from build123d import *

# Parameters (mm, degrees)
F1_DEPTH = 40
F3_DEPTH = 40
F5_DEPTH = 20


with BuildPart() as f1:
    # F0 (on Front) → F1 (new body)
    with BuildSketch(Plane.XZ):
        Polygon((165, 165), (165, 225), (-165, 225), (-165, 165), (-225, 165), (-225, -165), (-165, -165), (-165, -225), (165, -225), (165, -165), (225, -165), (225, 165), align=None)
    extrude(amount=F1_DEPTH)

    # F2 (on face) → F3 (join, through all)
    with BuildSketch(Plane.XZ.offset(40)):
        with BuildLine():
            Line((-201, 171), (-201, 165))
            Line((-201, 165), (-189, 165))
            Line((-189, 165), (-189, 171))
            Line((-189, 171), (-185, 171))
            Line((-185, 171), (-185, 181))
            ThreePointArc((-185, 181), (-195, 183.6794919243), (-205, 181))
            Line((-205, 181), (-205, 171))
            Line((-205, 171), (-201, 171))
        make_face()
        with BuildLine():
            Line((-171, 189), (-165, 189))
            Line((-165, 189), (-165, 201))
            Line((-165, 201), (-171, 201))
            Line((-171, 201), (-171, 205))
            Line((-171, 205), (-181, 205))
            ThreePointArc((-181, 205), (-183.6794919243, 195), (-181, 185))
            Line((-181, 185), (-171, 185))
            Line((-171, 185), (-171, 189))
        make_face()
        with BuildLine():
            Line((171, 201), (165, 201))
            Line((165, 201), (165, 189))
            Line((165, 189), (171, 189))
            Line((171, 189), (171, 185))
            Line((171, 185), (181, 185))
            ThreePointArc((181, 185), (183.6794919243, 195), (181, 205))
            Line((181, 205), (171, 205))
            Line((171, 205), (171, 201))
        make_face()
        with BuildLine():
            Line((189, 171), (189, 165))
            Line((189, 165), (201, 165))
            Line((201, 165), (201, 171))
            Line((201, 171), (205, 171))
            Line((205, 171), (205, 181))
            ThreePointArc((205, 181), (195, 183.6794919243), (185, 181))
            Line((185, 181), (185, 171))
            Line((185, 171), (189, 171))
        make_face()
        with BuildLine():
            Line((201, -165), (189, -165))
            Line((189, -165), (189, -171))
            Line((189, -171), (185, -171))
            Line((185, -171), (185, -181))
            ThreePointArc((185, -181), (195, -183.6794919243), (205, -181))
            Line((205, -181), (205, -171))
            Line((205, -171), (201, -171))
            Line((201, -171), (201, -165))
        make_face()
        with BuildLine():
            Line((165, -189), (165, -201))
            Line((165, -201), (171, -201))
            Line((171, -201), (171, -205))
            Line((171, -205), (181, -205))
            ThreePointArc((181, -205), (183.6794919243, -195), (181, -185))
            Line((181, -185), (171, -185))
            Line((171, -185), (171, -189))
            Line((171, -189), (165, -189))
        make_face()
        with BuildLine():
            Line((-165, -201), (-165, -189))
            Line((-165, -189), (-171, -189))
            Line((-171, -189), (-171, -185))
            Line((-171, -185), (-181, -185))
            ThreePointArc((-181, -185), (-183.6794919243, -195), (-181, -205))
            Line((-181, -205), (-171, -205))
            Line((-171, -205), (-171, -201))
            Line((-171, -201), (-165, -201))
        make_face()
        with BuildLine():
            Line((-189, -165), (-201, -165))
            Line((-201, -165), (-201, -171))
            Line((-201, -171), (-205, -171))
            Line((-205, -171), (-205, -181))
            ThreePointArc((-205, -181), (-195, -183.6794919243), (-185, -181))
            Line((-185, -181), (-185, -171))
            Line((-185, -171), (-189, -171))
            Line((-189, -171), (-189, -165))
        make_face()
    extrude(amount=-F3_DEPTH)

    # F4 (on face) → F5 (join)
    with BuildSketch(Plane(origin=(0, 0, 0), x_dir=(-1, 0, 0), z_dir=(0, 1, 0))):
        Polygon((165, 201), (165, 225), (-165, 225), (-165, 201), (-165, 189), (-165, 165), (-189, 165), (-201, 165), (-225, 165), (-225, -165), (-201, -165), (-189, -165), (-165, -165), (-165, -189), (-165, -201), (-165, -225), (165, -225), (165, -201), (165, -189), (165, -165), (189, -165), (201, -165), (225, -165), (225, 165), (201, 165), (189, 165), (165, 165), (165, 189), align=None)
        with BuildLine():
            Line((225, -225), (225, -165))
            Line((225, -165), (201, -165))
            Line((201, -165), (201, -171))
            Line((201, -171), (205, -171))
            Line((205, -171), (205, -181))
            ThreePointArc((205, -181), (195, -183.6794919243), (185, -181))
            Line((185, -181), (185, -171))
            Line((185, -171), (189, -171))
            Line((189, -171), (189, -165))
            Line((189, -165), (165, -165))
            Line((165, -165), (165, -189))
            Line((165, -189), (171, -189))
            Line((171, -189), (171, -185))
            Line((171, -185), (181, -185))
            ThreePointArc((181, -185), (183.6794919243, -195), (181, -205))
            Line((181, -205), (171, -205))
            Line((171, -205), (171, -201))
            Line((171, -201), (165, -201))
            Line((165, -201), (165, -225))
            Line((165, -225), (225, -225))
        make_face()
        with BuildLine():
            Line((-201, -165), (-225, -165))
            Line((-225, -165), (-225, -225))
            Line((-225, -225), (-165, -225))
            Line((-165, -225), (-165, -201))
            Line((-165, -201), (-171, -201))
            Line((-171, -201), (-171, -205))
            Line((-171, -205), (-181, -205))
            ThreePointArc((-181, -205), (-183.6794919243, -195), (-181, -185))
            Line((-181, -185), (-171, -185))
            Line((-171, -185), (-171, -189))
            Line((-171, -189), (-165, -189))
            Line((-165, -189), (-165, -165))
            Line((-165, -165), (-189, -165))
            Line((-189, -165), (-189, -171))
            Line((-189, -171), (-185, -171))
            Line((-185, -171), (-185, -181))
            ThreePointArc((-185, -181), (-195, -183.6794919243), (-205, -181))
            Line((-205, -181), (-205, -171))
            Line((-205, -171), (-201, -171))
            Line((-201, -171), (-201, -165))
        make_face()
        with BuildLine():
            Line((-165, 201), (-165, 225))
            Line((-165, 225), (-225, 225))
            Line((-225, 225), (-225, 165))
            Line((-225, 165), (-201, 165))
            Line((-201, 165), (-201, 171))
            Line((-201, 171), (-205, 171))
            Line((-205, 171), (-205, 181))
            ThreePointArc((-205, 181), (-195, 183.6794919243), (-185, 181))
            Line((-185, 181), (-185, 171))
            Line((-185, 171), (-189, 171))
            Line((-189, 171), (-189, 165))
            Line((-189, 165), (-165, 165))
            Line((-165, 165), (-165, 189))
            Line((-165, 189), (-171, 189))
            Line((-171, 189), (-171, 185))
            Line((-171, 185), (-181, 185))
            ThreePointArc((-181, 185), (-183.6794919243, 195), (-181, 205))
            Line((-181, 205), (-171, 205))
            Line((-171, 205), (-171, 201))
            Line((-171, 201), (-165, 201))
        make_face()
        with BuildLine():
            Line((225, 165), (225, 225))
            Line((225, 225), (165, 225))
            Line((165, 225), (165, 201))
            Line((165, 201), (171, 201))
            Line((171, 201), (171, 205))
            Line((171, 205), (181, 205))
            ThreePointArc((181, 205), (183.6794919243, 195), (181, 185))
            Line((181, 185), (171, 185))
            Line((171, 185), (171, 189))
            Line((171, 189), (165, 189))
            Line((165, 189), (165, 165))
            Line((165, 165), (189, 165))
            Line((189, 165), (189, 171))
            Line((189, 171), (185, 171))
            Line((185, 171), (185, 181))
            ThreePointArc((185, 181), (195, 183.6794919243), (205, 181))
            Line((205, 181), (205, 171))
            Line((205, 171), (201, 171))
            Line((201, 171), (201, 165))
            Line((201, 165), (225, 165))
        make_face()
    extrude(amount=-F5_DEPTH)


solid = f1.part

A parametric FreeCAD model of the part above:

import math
import FreeCAD as App
import Part
import Sketcher
from FreeCAD import Vector
Q = App.Units.Quantity

doc = App.newDocument("Part")
body = doc.addObject("PartDesign::Body", "Body")

# Sketch on XZ plane
sketch1 = body.newObject("Sketcher::SketchObject", "Sketch")
sketch1.AttachmentSupport = (doc.getObject("XZ_Plane"), [""])
sketch1.MapMode = "FlatFace"
sketch1.addGeometry([
    Part.LineSegment(Vector(165, 165, 0), Vector(165, 225, 0)),  # 0
    Part.LineSegment(Vector(165, 225, 0), Vector(-165, 225, 0)),  # 1
    Part.LineSegment(Vector(-165, 225, 0), Vector(-165, 165, 0)),  # 2
    Part.LineSegment(Vector(-165, 165, 0), Vector(-225, 165, 0)),  # 3
    Part.LineSegment(Vector(-225, 165, 0), Vector(-225, -165, 0)),  # 4
    Part.LineSegment(Vector(-225, -165, 0), Vector(-165, -165, 0)),  # 5
    Part.LineSegment(Vector(-165, -165, 0), Vector(-165, -225, 0)),  # 6
    Part.LineSegment(Vector(-165, -225, 0), Vector(165, -225, 0)),  # 7
    Part.LineSegment(Vector(165, -225, 0), Vector(165, -165, 0)),  # 8
    Part.LineSegment(Vector(165, -165, 0), Vector(225, -165, 0)),  # 9
    Part.LineSegment(Vector(225, -165, 0), Vector(225, 165, 0)),  # 10
    Part.LineSegment(Vector(225, 165, 0), Vector(165, 165, 0)),  # 11
], False)
sketch1.addConstraint([
    Sketcher.Constraint("Coincident", 0, 2, 1, 1),
    Sketcher.Constraint("Coincident", 1, 2, 2, 1),
    Sketcher.Constraint("Coincident", 2, 2, 3, 1),
    Sketcher.Constraint("Coincident", 3, 2, 4, 1),
    Sketcher.Constraint("Coincident", 4, 2, 5, 1),
    Sketcher.Constraint("Coincident", 5, 2, 6, 1),
    Sketcher.Constraint("Coincident", 6, 2, 7, 1),
    Sketcher.Constraint("Coincident", 7, 2, 8, 1),
    Sketcher.Constraint("Coincident", 8, 2, 9, 1),
    Sketcher.Constraint("Coincident", 9, 2, 10, 1),
    Sketcher.Constraint("Coincident", 10, 2, 11, 1),
    Sketcher.Constraint("Coincident", 11, 2, 0, 1),
    Sketcher.Constraint("Vertical", 0),
    Sketcher.Constraint("Horizontal", 1),
    Sketcher.Constraint("Vertical", 2),
    Sketcher.Constraint("Horizontal", 3),
    Sketcher.Constraint("Vertical", 4),
    Sketcher.Constraint("Horizontal", 5),
    Sketcher.Constraint("Vertical", 6),
    Sketcher.Constraint("Horizontal", 7),
    Sketcher.Constraint("Vertical", 8),
    Sketcher.Constraint("Horizontal", 9),
    Sketcher.Constraint("Vertical", 10),
    Sketcher.Constraint("Horizontal", 11),
    Sketcher.Constraint("Symmetric", 0, 2, 6, 2, -1, 1),
    Sketcher.Constraint("Symmetric", 2, 2, 8, 2, -1, 1),
    Sketcher.Constraint("Symmetric", 4, 2, 10, 2, -1, 1),
    Sketcher.Constraint("Symmetric", 5, 2, 8, 2, -2),
    Sketcher.Constraint("Equal", 11, 0),
    Sketcher.Constraint("Equal", 7, 4),
    Sketcher.Constraint("DistanceX", 1, 2, 1, 1, Q("330 mm")),
    Sketcher.Constraint("DistanceX", 3, 2, 3, 1, Q("60 mm")),
])
pad1 = body.newObject("PartDesign::Pad", "Pad")
pad1.Profile = sketch1
pad1.Length = 40

# Sketch on XZ plane
sketch2 = body.newObject("Sketcher::SketchObject", "Sketch001")
sketch2.AttachmentSupport = (doc.getObject("XZ_Plane"), [""])
sketch2.MapMode = "FlatFace"
sketch2.AttachmentOffset = App.Placement(Vector(0, 0, 40), App.Rotation())
sketch2.addGeometry([
    Part.LineSegment(Vector(-201, 171, 0), Vector(-201, 165, 0)),  # 0
    Part.LineSegment(Vector(-201, 165, 0), Vector(-189, 165, 0)),  # 1
    Part.LineSegment(Vector(-189, 165, 0), Vector(-189, 171, 0)),  # 2
    Part.LineSegment(Vector(-189, 171, 0), Vector(-185, 171, 0)),  # 3
    Part.LineSegment(Vector(-185, 171, 0), Vector(-185, 181, 0)),  # 4
    Part.ArcOfCircle(Part.Circle(Vector(-195, 163.679492, 0), Vector(0, 0, 1), 20), math.radians(60), math.radians(120)),  # 5
    Part.LineSegment(Vector(-205, 181, 0), Vector(-205, 171, 0)),  # 6
    Part.LineSegment(Vector(-205, 171, 0), Vector(-201, 171, 0)),  # 7
    Part.LineSegment(Vector(-171, 189, 0), Vector(-165, 189, 0)),  # 8
    Part.LineSegment(Vector(-165, 189, 0), Vector(-165, 201, 0)),  # 9
    Part.LineSegment(Vector(-165, 201, 0), Vector(-171, 201, 0)),  # 10
    Part.LineSegment(Vector(-171, 201, 0), Vector(-171, 205, 0)),  # 11
    Part.LineSegment(Vector(-171, 205, 0), Vector(-181, 205, 0)),  # 12
    Part.ArcOfCircle(Part.Circle(Vector(-163.679492, 195, 0), Vector(0, 0, 1), 20), math.radians(150), math.radians(210)),  # 13
    Part.LineSegment(Vector(-181, 185, 0), Vector(-171, 185, 0)),  # 14
    Part.LineSegment(Vector(-171, 185, 0), Vector(-171, 189, 0)),  # 15
    Part.LineSegment(Vector(171, 201, 0), Vector(165, 201, 0)),  # 16
    Part.LineSegment(Vector(165, 201, 0), Vector(165, 189, 0)),  # 17
    Part.LineSegment(Vector(165, 189, 0), Vector(171, 189, 0)),  # 18
    Part.LineSegment(Vector(171, 189, 0), Vector(171, 185, 0)),  # 19
    Part.LineSegment(Vector(171, 185, 0), Vector(181, 185, 0)),  # 20
    Part.ArcOfCircle(Part.Circle(Vector(163.679492, 195, 0), Vector(0, 0, 1), 20), math.radians(-30), math.radians(30)),  # 21
    Part.LineSegment(Vector(181, 205, 0), Vector(171, 205, 0)),  # 22
    Part.LineSegment(Vector(171, 205, 0), Vector(171, 201, 0)),  # 23
    Part.LineSegment(Vector(189, 171, 0), Vector(189, 165, 0)),  # 24
    Part.LineSegment(Vector(189, 165, 0), Vector(201, 165, 0)),  # 25
    Part.LineSegment(Vector(201, 165, 0), Vector(201, 171, 0)),  # 26
    Part.LineSegment(Vector(201, 171, 0), Vector(205, 171, 0)),  # 27
    Part.LineSegment(Vector(205, 171, 0), Vector(205, 181, 0)),  # 28
    Part.ArcOfCircle(Part.Circle(Vector(195, 163.679492, 0), Vector(0, 0, 1), 20), math.radians(60), math.radians(120)),  # 29
    Part.LineSegment(Vector(185, 181, 0), Vector(185, 171, 0)),  # 30
    Part.LineSegment(Vector(185, 171, 0), Vector(189, 171, 0)),  # 31
    Part.LineSegment(Vector(201, -165, 0), Vector(189, -165, 0)),  # 32
    Part.LineSegment(Vector(189, -165, 0), Vector(189, -171, 0)),  # 33
    Part.LineSegment(Vector(189, -171, 0), Vector(185, -171, 0)),  # 34
    Part.LineSegment(Vector(185, -171, 0), Vector(185, -181, 0)),  # 35
    Part.ArcOfCircle(Part.Circle(Vector(195, -163.679492, 0), Vector(0, 0, 1), 20), math.radians(-120), math.radians(-60)),  # 36
    Part.LineSegment(Vector(205, -181, 0), Vector(205, -171, 0)),  # 37
    Part.LineSegment(Vector(205, -171, 0), Vector(201, -171, 0)),  # 38
    Part.LineSegment(Vector(201, -171, 0), Vector(201, -165, 0)),  # 39
    Part.LineSegment(Vector(165, -189, 0), Vector(165, -201, 0)),  # 40
    Part.LineSegment(Vector(165, -201, 0), Vector(171, -201, 0)),  # 41
    Part.LineSegment(Vector(171, -201, 0), Vector(171, -205, 0)),  # 42
    Part.LineSegment(Vector(171, -205, 0), Vector(181, -205, 0)),  # 43
    Part.ArcOfCircle(Part.Circle(Vector(163.679492, -195, 0), Vector(0, 0, 1), 20), math.radians(-30), math.radians(30)),  # 44
    Part.LineSegment(Vector(181, -185, 0), Vector(171, -185, 0)),  # 45
    Part.LineSegment(Vector(171, -185, 0), Vector(171, -189, 0)),  # 46
    Part.LineSegment(Vector(171, -189, 0), Vector(165, -189, 0)),  # 47
    Part.LineSegment(Vector(-165, -201, 0), Vector(-165, -189, 0)),  # 48
    Part.LineSegment(Vector(-165, -189, 0), Vector(-171, -189, 0)),  # 49
    Part.LineSegment(Vector(-171, -189, 0), Vector(-171, -185, 0)),  # 50
    Part.LineSegment(Vector(-171, -185, 0), Vector(-181, -185, 0)),  # 51
    Part.ArcOfCircle(Part.Circle(Vector(-163.679492, -195, 0), Vector(0, 0, 1), 20), math.radians(150), math.radians(210)),  # 52
    Part.LineSegment(Vector(-181, -205, 0), Vector(-171, -205, 0)),  # 53
    Part.LineSegment(Vector(-171, -205, 0), Vector(-171, -201, 0)),  # 54
    Part.LineSegment(Vector(-171, -201, 0), Vector(-165, -201, 0)),  # 55
    Part.LineSegment(Vector(-189, -165, 0), Vector(-201, -165, 0)),  # 56
    Part.LineSegment(Vector(-201, -165, 0), Vector(-201, -171, 0)),  # 57
    Part.LineSegment(Vector(-201, -171, 0), Vector(-205, -171, 0)),  # 58
    Part.LineSegment(Vector(-205, -171, 0), Vector(-205, -181, 0)),  # 59
    Part.ArcOfCircle(Part.Circle(Vector(-195, -163.679492, 0), Vector(0, 0, 1), 20), math.radians(-120), math.radians(-60)),  # 60
    Part.LineSegment(Vector(-185, -181, 0), Vector(-185, -171, 0)),  # 61
    Part.LineSegment(Vector(-185, -171, 0), Vector(-189, -171, 0)),  # 62
    Part.LineSegment(Vector(-189, -171, 0), Vector(-189, -165, 0)),  # 63
], False)
sketch2.addConstraint([
    Sketcher.Constraint("Coincident", 0, 2, 1, 1),
    Sketcher.Constraint("Coincident", 1, 2, 2, 1),
    Sketcher.Constraint("Coincident", 2, 2, 3, 1),
    Sketcher.Constraint("Coincident", 3, 2, 4, 1),
    Sketcher.Constraint("Coincident", 4, 2, 5, 1),
    Sketcher.Constraint("Coincident", 5, 2, 6, 1),
    Sketcher.Constraint("Coincident", 6, 2, 7, 1),
    Sketcher.Constraint("Coincident", 7, 2, 0, 1),
    Sketcher.Constraint("Coincident", 8, 2, 9, 1),
    Sketcher.Constraint("Coincident", 9, 2, 10, 1),
    Sketcher.Constraint("Coincident", 10, 2, 11, 1),
    Sketcher.Constraint("Coincident", 11, 2, 12, 1),
    Sketcher.Constraint("Coincident", 12, 2, 13, 1),
    Sketcher.Constraint("Coincident", 13, 2, 14, 1),
    Sketcher.Constraint("Coincident", 14, 2, 15, 1),
    Sketcher.Constraint("Coincident", 15, 2, 8, 1),
    Sketcher.Constraint("Coincident", 16, 2, 17, 1),
    Sketcher.Constraint("Coincident", 17, 2, 18, 1),
    Sketcher.Constraint("Coincident", 18, 2, 19, 1),
    Sketcher.Constraint("Coincident", 19, 2, 20, 1),
    Sketcher.Constraint("Coincident", 20, 2, 21, 1),
    Sketcher.Constraint("Coincident", 21, 2, 22, 1),
    Sketcher.Constraint("Coincident", 22, 2, 23, 1),
    Sketcher.Constraint("Coincident", 23, 2, 16, 1),
    Sketcher.Constraint("Coincident", 24, 2, 25, 1),
    Sketcher.Constraint("Coincident", 25, 2, 26, 1),
    Sketcher.Constraint("Coincident", 26, 2, 27, 1),
    Sketcher.Constraint("Coincident", 27, 2, 28, 1),
    Sketcher.Constraint("Coincident", 28, 2, 29, 1),
    Sketcher.Constraint("Coincident", 29, 2, 30, 1),
    Sketcher.Constraint("Coincident", 30, 2, 31, 1),
    Sketcher.Constraint("Coincident", 31, 2, 24, 1),
    Sketcher.Constraint("Coincident", 32, 2, 33, 1),
    Sketcher.Constraint("Coincident", 33, 2, 34, 1),
    Sketcher.Constraint("Coincident", 34, 2, 35, 1),
    Sketcher.Constraint("Coincident", 35, 2, 36, 1),
    Sketcher.Constraint("Coincident", 36, 2, 37, 1),
    Sketcher.Constraint("Coincident", 37, 2, 38, 1),
    Sketcher.Constraint("Coincident", 38, 2, 39, 1),
    Sketcher.Constraint("Coincident", 39, 2, 32, 1),
    Sketcher.Constraint("Coincident", 40, 2, 41, 1),
    Sketcher.Constraint("Coincident", 41, 2, 42, 1),
    Sketcher.Constraint("Coincident", 42, 2, 43, 1),
    Sketcher.Constraint("Coincident", 43, 2, 44, 1),
    Sketcher.Constraint("Coincident", 44, 2, 45, 1),
    Sketcher.Constraint("Coincident", 45, 2, 46, 1),
    Sketcher.Constraint("Coincident", 46, 2, 47, 1),
    Sketcher.Constraint("Coincident", 47, 2, 40, 1),
    Sketcher.Constraint("Coincident", 48, 2, 49, 1),
    Sketcher.Constraint("Coincident", 49, 2, 50, 1),
    Sketcher.Constraint("Coincident", 50, 2, 51, 1),
    Sketcher.Constraint("Coincident", 51, 2, 52, 1),
    Sketcher.Constraint("Coincident", 52, 2, 53, 1),
    Sketcher.Constraint("Coincident", 53, 2, 54, 1),
    Sketcher.Constraint("Coincident", 54, 2, 55, 1),
    Sketcher.Constraint("Coincident", 55, 2, 48, 1),
    Sketcher.Constraint("Coincident", 56, 2, 57, 1),
    Sketcher.Constraint("Coincident", 57, 2, 58, 1),
    Sketcher.Constraint("Coincident", 58, 2, 59, 1),
    Sketcher.Constraint("Coincident", 59, 2, 60, 1),
    Sketcher.Constraint("Coincident", 60, 2, 61, 1),
    Sketcher.Constraint("Coincident", 61, 2, 62, 1),
    Sketcher.Constraint("Coincident", 62, 2, 63, 1),
    Sketcher.Constraint("Coincident", 63, 2, 56, 1),
    Sketcher.Constraint("Vertical", 0),
    Sketcher.Constraint("Horizontal", 1),
    Sketcher.Constraint("Vertical", 2),
    Sketcher.Constraint("Horizontal", 3),
    Sketcher.Constraint("Vertical", 4),
    Sketcher.Constraint("Vertical", 6),
    Sketcher.Constraint("Horizontal", 7),
    Sketcher.Constraint("Horizontal", 8),
    Sketcher.Constraint("Vertical", 9),
    Sketcher.Constraint("Horizontal", 10),
    Sketcher.Constraint("Vertical", 11),
    Sketcher.Constraint("Horizontal", 12),
    Sketcher.Constraint("Horizontal", 14),
    Sketcher.Constraint("Vertical", 15),
    Sketcher.Constraint("Horizontal", 16),
    Sketcher.Constraint("Vertical", 17),
    Sketcher.Constraint("Horizontal", 18),
    Sketcher.Constraint("Vertical", 19),
    Sketcher.Constraint("Horizontal", 20),
    Sketcher.Constraint("Horizontal", 22),
    Sketcher.Constraint("Vertical", 23),
    Sketcher.Constraint("Vertical", 24),
    Sketcher.Constraint("Horizontal", 25),
    Sketcher.Constraint("Vertical", 26),
    Sketcher.Constraint("Horizontal", 27),
    Sketcher.Constraint("Vertical", 28),
    Sketcher.Constraint("Vertical", 30),
    Sketcher.Constraint("Horizontal", 31),
    Sketcher.Constraint("Horizontal", 32),
    Sketcher.Constraint("Vertical", 33),
    Sketcher.Constraint("Horizontal", 34),
    Sketcher.Constraint("Vertical", 35),
    Sketcher.Constraint("Vertical", 37),
    Sketcher.Constraint("Horizontal", 38),
    Sketcher.Constraint("Vertical", 39),
    Sketcher.Constraint("Vertical", 40),
    Sketcher.Constraint("Horizontal", 41),
    Sketcher.Constraint("Vertical", 42),
    Sketcher.Constraint("Horizontal", 43),
    Sketcher.Constraint("Horizontal", 45),
    Sketcher.Constraint("Vertical", 46),
    Sketcher.Constraint("Horizontal", 47),
    Sketcher.Constraint("Vertical", 48),
    Sketcher.Constraint("Horizontal", 49),
    Sketcher.Constraint("Vertical", 50),
    Sketcher.Constraint("Horizontal", 51),
    Sketcher.Constraint("Horizontal", 53),
    Sketcher.Constraint("Vertical", 54),
    Sketcher.Constraint("Horizontal", 55),
    Sketcher.Constraint("Horizontal", 56),
    Sketcher.Constraint("Vertical", 57),
    Sketcher.Constraint("Horizontal", 58),
    Sketcher.Constraint("Vertical", 59),
    Sketcher.Constraint("Vertical", 61),
    Sketcher.Constraint("Horizontal", 62),
    Sketcher.Constraint("Vertical", 63),
    Sketcher.Constraint("Equal", 5, 13),
    Sketcher.Constraint("Equal", 13, 21),
    Sketcher.Constraint("Equal", 21, 29),
    Sketcher.Constraint("Equal", 29, 36),
    Sketcher.Constraint("Equal", 36, 44),
    Sketcher.Constraint("Equal", 44, 52),
    Sketcher.Constraint("Equal", 52, 60),
    Sketcher.Constraint("Symmetric", 5, 3, 36, 3, -1, 1),
    Sketcher.Constraint("Symmetric", 13, 3, 44, 3, -1, 1),
    Sketcher.Constraint("Symmetric", 21, 3, 52, 3, -1, 1),
    Sketcher.Constraint("Symmetric", 29, 3, 60, 3, -1, 1),
    Sketcher.Constraint("Symmetric", 1, 2, 32, 2, -1, 1),
    Sketcher.Constraint("Symmetric", 3, 2, 34, 2, -1, 1),
    Sketcher.Constraint("Symmetric", 6, 2, 37, 2, -1, 1),
    Sketcher.Constraint("Symmetric", 9, 2, 40, 2, -1, 1),
    Sketcher.Constraint("Symmetric", 11, 2, 42, 2, -1, 1),
    Sketcher.Constraint("Symmetric", 14, 2, 45, 2, -1, 1),
    Sketcher.Constraint("Symmetric", 17, 2, 48, 2, -1, 1),
    Sketcher.Constraint("Symmetric", 19, 2, 50, 2, -1, 1),
    Sketcher.Constraint("Symmetric", 22, 2, 53, 2, -1, 1),
    Sketcher.Constraint("Symmetric", 25, 2, 56, 2, -1, 1),
    Sketcher.Constraint("Symmetric", 27, 2, 58, 2, -1, 1),
    Sketcher.Constraint("Symmetric", 30, 2, 61, 2, -1, 1),
    Sketcher.Constraint("Symmetric", 13, 3, 21, 3, -2),
    Sketcher.Constraint("Symmetric", 5, 3, 29, 3, -2),
    Sketcher.Constraint("Symmetric", 9, 2, 16, 2, -2),
    Sketcher.Constraint("Symmetric", 15, 2, 18, 2, -2),
    Sketcher.Constraint("Symmetric", 11, 2, 22, 2, -2),
    Sketcher.Constraint("Symmetric", 1, 2, 24, 2, -2),
    Sketcher.Constraint("Symmetric", 7, 2, 26, 2, -2),
    Sketcher.Constraint("Symmetric", 3, 2, 30, 2, -2),
    Sketcher.Constraint("Horizontal", 4, 2, 5, 2),
    Sketcher.Constraint("Horizontal", 3, 2, 6, 2),
    Sketcher.Constraint("Horizontal", 14, 2, 19, 2),
    Sketcher.Constraint("Horizontal", 5, 2, 28, 2),
    Sketcher.Constraint("Horizontal", 47, 2, 48, 2),
    Sketcher.Constraint("Horizontal", 41, 2, 54, 2),
    Sketcher.Constraint("Vertical", 12, 2, 13, 2),
    Sketcher.Constraint("Vertical", 11, 2, 14, 2),
    Sketcher.Constraint("Vertical", 26, 2, 38, 2),
    Sketcher.Constraint("Vertical", 2, 2, 62, 2),
    Sketcher.Constraint("Equal", 3, 7),
    Sketcher.Constraint("Equal", 55, 0),
    Sketcher.Constraint("Equal", 53, 4),
    Sketcher.Constraint("Equal", 56, 9),
    Sketcher.Constraint("Equal", 62, 11),
    Sketcher.Constraint("Equal", 11, 15),
    Sketcher.Constraint("Radius", 5, Q("20 mm")),
    Sketcher.Constraint("DistanceX", 1, 1, 1, 2, Q("12 mm")),
    Sketcher.Constraint("DistanceX", 3, 1, 3, 2, Q("4 mm")),
    Sketcher.Constraint("DistanceX", 8, 1, 8, 2, Q("6 mm")),
    Sketcher.Constraint("DistanceX", 12, 2, 12, 1, Q("10 mm")),
    Sketcher.Constraint("DistanceX", 5, 3, -1, 1, Q("195 mm")),
    Sketcher.Constraint("DistanceY", -1, 1, 13, 3, Q("195 mm")),
    Sketcher.Constraint("DistanceY", -1, 1, 0, 2, Q("165 mm")),
    Sketcher.Constraint("DistanceX", 8, 2, -1, 1, Q("165 mm")),
])
pad2 = body.newObject("PartDesign::Pad", "Pad001")
pad2.Profile = sketch2
pad2.Type = "UpToLast"
pad2.Reversed = True

# Sketch on XZ plane
sketch3 = body.newObject("Sketcher::SketchObject", "Sketch002")
sketch3.AttachmentSupport = (doc.getObject("XZ_Plane"), [""])
sketch3.MapMode = "FlatFace"
sketch3.addGeometry([
    Part.LineSegment(Vector(225, 225, 0), Vector(225, -225, 0)),  # 0
    Part.LineSegment(Vector(225, -225, 0), Vector(-225, -225, 0)),  # 1
    Part.LineSegment(Vector(-225, -225, 0), Vector(-225, 225, 0)),  # 2
    Part.LineSegment(Vector(-225, 225, 0), Vector(225, 225, 0)),  # 3
    Part.LineSegment(Vector(-201, 165, 0), Vector(-189, 165, 0)),  # 4
    Part.LineSegment(Vector(-189, 165, 0), Vector(-189, 171, 0)),  # 5
    Part.LineSegment(Vector(-189, 171, 0), Vector(-185, 171, 0)),  # 6
    Part.LineSegment(Vector(-185, 171, 0), Vector(-185, 181, 0)),  # 7
    Part.ArcOfCircle(Part.Circle(Vector(-195, 163.679492, 0), Vector(0, 0, 1), 20), math.radians(60), math.radians(120)),  # 8
    Part.LineSegment(Vector(-205, 181, 0), Vector(-205, 171, 0)),  # 9
    Part.LineSegment(Vector(-205, 171, 0), Vector(-201, 171, 0)),  # 10
    Part.LineSegment(Vector(-201, 171, 0), Vector(-201, 165, 0)),  # 11
    Part.LineSegment(Vector(-165, 189, 0), Vector(-165, 201, 0)),  # 12
    Part.LineSegment(Vector(-165, 201, 0), Vector(-171, 201, 0)),  # 13
    Part.LineSegment(Vector(-171, 201, 0), Vector(-171, 205, 0)),  # 14
    Part.LineSegment(Vector(-171, 205, 0), Vector(-181, 205, 0)),  # 15
    Part.ArcOfCircle(Part.Circle(Vector(-163.679492, 195, 0), Vector(0, 0, 1), 20), math.radians(150), math.radians(210)),  # 16
    Part.LineSegment(Vector(-181, 185, 0), Vector(-171, 185, 0)),  # 17
    Part.LineSegment(Vector(-171, 185, 0), Vector(-171, 189, 0)),  # 18
    Part.LineSegment(Vector(-171, 189, 0), Vector(-165, 189, 0)),  # 19
    Part.LineSegment(Vector(165, 201, 0), Vector(165, 189, 0)),  # 20
    Part.LineSegment(Vector(165, 189, 0), Vector(171, 189, 0)),  # 21
    Part.LineSegment(Vector(171, 189, 0), Vector(171, 185, 0)),  # 22
    Part.LineSegment(Vector(171, 185, 0), Vector(181, 185, 0)),  # 23
    Part.ArcOfCircle(Part.Circle(Vector(163.679492, 195, 0), Vector(0, 0, 1), 20), math.radians(-30), math.radians(30)),  # 24
    Part.LineSegment(Vector(181, 205, 0), Vector(171, 205, 0)),  # 25
    Part.LineSegment(Vector(171, 205, 0), Vector(171, 201, 0)),  # 26
    Part.LineSegment(Vector(171, 201, 0), Vector(165, 201, 0)),  # 27
    Part.LineSegment(Vector(189, 165, 0), Vector(201, 165, 0)),  # 28
    Part.LineSegment(Vector(201, 165, 0), Vector(201, 171, 0)),  # 29
    Part.LineSegment(Vector(201, 171, 0), Vector(205, 171, 0)),  # 30
    Part.LineSegment(Vector(205, 171, 0), Vector(205, 181, 0)),  # 31
    Part.ArcOfCircle(Part.Circle(Vector(195, 163.679492, 0), Vector(0, 0, 1), 20), math.radians(60), math.radians(120)),  # 32
    Part.LineSegment(Vector(185, 181, 0), Vector(185, 171, 0)),  # 33
    Part.LineSegment(Vector(185, 171, 0), Vector(189, 171, 0)),  # 34
    Part.LineSegment(Vector(189, 171, 0), Vector(189, 165, 0)),  # 35
    Part.LineSegment(Vector(201, -165, 0), Vector(189, -165, 0)),  # 36
    Part.LineSegment(Vector(189, -165, 0), Vector(189, -171, 0)),  # 37
    Part.LineSegment(Vector(189, -171, 0), Vector(185, -171, 0)),  # 38
    Part.LineSegment(Vector(185, -171, 0), Vector(185, -181, 0)),  # 39
    Part.ArcOfCircle(Part.Circle(Vector(195, -163.679492, 0), Vector(0, 0, 1), 20), math.radians(-120), math.radians(-60)),  # 40
    Part.LineSegment(Vector(205, -181, 0), Vector(205, -171, 0)),  # 41
    Part.LineSegment(Vector(205, -171, 0), Vector(201, -171, 0)),  # 42
    Part.LineSegment(Vector(201, -171, 0), Vector(201, -165, 0)),  # 43
    Part.LineSegment(Vector(165, -189, 0), Vector(165, -201, 0)),  # 44
    Part.LineSegment(Vector(165, -201, 0), Vector(171, -201, 0)),  # 45
    Part.LineSegment(Vector(171, -201, 0), Vector(171, -205, 0)),  # 46
    Part.LineSegment(Vector(171, -205, 0), Vector(181, -205, 0)),  # 47
    Part.ArcOfCircle(Part.Circle(Vector(163.679492, -195, 0), Vector(0, 0, 1), 20), math.radians(-30), math.radians(30)),  # 48
    Part.LineSegment(Vector(181, -185, 0), Vector(171, -185, 0)),  # 49
    Part.LineSegment(Vector(171, -185, 0), Vector(171, -189, 0)),  # 50
    Part.LineSegment(Vector(171, -189, 0), Vector(165, -189, 0)),  # 51
    Part.LineSegment(Vector(-165, -201, 0), Vector(-165, -189, 0)),  # 52
    Part.LineSegment(Vector(-165, -189, 0), Vector(-171, -189, 0)),  # 53
    Part.LineSegment(Vector(-171, -189, 0), Vector(-171, -185, 0)),  # 54
    Part.LineSegment(Vector(-171, -185, 0), Vector(-181, -185, 0)),  # 55
    Part.ArcOfCircle(Part.Circle(Vector(-163.679492, -195, 0), Vector(0, 0, 1), 20), math.radians(150), math.radians(210)),  # 56
    Part.LineSegment(Vector(-181, -205, 0), Vector(-171, -205, 0)),  # 57
    Part.LineSegment(Vector(-171, -205, 0), Vector(-171, -201, 0)),  # 58
    Part.LineSegment(Vector(-171, -201, 0), Vector(-165, -201, 0)),  # 59
    Part.LineSegment(Vector(-189, -165, 0), Vector(-201, -165, 0)),  # 60
    Part.LineSegment(Vector(-201, -165, 0), Vector(-201, -171, 0)),  # 61
    Part.LineSegment(Vector(-201, -171, 0), Vector(-205, -171, 0)),  # 62
    Part.LineSegment(Vector(-205, -171, 0), Vector(-205, -181, 0)),  # 63
    Part.ArcOfCircle(Part.Circle(Vector(-195, -163.679492, 0), Vector(0, 0, 1), 20), math.radians(-120), math.radians(-60)),  # 64
    Part.LineSegment(Vector(-185, -181, 0), Vector(-185, -171, 0)),  # 65
    Part.LineSegment(Vector(-185, -171, 0), Vector(-189, -171, 0)),  # 66
    Part.LineSegment(Vector(-189, -171, 0), Vector(-189, -165, 0)),  # 67
], False)
sketch3.addConstraint([
    Sketcher.Constraint("Coincident", 0, 2, 1, 1),
    Sketcher.Constraint("Coincident", 1, 2, 2, 1),
    Sketcher.Constraint("Coincident", 2, 2, 3, 1),
    Sketcher.Constraint("Coincident", 3, 2, 0, 1),
    Sketcher.Constraint("Coincident", 4, 2, 5, 1),
    Sketcher.Constraint("Coincident", 5, 2, 6, 1),
    Sketcher.Constraint("Coincident", 6, 2, 7, 1),
    Sketcher.Constraint("Coincident", 7, 2, 8, 1),
    Sketcher.Constraint("Coincident", 8, 2, 9, 1),
    Sketcher.Constraint("Coincident", 9, 2, 10, 1),
    Sketcher.Constraint("Coincident", 10, 2, 11, 1),
    Sketcher.Constraint("Coincident", 11, 2, 4, 1),
    Sketcher.Constraint("Coincident", 12, 2, 13, 1),
    Sketcher.Constraint("Coincident", 13, 2, 14, 1),
    Sketcher.Constraint("Coincident", 14, 2, 15, 1),
    Sketcher.Constraint("Coincident", 15, 2, 16, 1),
    Sketcher.Constraint("Coincident", 16, 2, 17, 1),
    Sketcher.Constraint("Coincident", 17, 2, 18, 1),
    Sketcher.Constraint("Coincident", 18, 2, 19, 1),
    Sketcher.Constraint("Coincident", 19, 2, 12, 1),
    Sketcher.Constraint("Coincident", 20, 2, 21, 1),
    Sketcher.Constraint("Coincident", 21, 2, 22, 1),
    Sketcher.Constraint("Coincident", 22, 2, 23, 1),
    Sketcher.Constraint("Coincident", 23, 2, 24, 1),
    Sketcher.Constraint("Coincident", 24, 2, 25, 1),
    Sketcher.Constraint("Coincident", 25, 2, 26, 1),
    Sketcher.Constraint("Coincident", 26, 2, 27, 1),
    Sketcher.Constraint("Coincident", 27, 2, 20, 1),
    Sketcher.Constraint("Coincident", 28, 2, 29, 1),
    Sketcher.Constraint("Coincident", 29, 2, 30, 1),
    Sketcher.Constraint("Coincident", 30, 2, 31, 1),
    Sketcher.Constraint("Coincident", 31, 2, 32, 1),
    Sketcher.Constraint("Coincident", 32, 2, 33, 1),
    Sketcher.Constraint("Coincident", 33, 2, 34, 1),
    Sketcher.Constraint("Coincident", 34, 2, 35, 1),
    Sketcher.Constraint("Coincident", 35, 2, 28, 1),
    Sketcher.Constraint("Coincident", 36, 2, 37, 1),
    Sketcher.Constraint("Coincident", 37, 2, 38, 1),
    Sketcher.Constraint("Coincident", 38, 2, 39, 1),
    Sketcher.Constraint("Coincident", 39, 2, 40, 1),
    Sketcher.Constraint("Coincident", 40, 2, 41, 1),
    Sketcher.Constraint("Coincident", 41, 2, 42, 1),
    Sketcher.Constraint("Coincident", 42, 2, 43, 1),
    Sketcher.Constraint("Coincident", 43, 2, 36, 1),
    Sketcher.Constraint("Coincident", 44, 2, 45, 1),
    Sketcher.Constraint("Coincident", 45, 2, 46, 1),
    Sketcher.Constraint("Coincident", 46, 2, 47, 1),
    Sketcher.Constraint("Coincident", 47, 2, 48, 1),
    Sketcher.Constraint("Coincident", 48, 2, 49, 1),
    Sketcher.Constraint("Coincident", 49, 2, 50, 1),
    Sketcher.Constraint("Coincident", 50, 2, 51, 1),
    Sketcher.Constraint("Coincident", 51, 2, 44, 1),
    Sketcher.Constraint("Coincident", 52, 2, 53, 1),
    Sketcher.Constraint("Coincident", 53, 2, 54, 1),
    Sketcher.Constraint("Coincident", 54, 2, 55, 1),
    Sketcher.Constraint("Coincident", 55, 2, 56, 1),
    Sketcher.Constraint("Coincident", 56, 2, 57, 1),
    Sketcher.Constraint("Coincident", 57, 2, 58, 1),
    Sketcher.Constraint("Coincident", 58, 2, 59, 1),
    Sketcher.Constraint("Coincident", 59, 2, 52, 1),
    Sketcher.Constraint("Coincident", 60, 2, 61, 1),
    Sketcher.Constraint("Coincident", 61, 2, 62, 1),
    Sketcher.Constraint("Coincident", 62, 2, 63, 1),
    Sketcher.Constraint("Coincident", 63, 2, 64, 1),
    Sketcher.Constraint("Coincident", 64, 2, 65, 1),
    Sketcher.Constraint("Coincident", 65, 2, 66, 1),
    Sketcher.Constraint("Coincident", 66, 2, 67, 1),
    Sketcher.Constraint("Coincident", 67, 2, 60, 1),
    Sketcher.Constraint("Vertical", 0),
    Sketcher.Constraint("Horizontal", 1),
    Sketcher.Constraint("Vertical", 2),
    Sketcher.Constraint("Horizontal", 3),
    Sketcher.Constraint("Horizontal", 4),
    Sketcher.Constraint("Vertical", 5),
    Sketcher.Constraint("Horizontal", 6),
    Sketcher.Constraint("Vertical", 7),
    Sketcher.Constraint("Vertical", 9),
    Sketcher.Constraint("Horizontal", 10),
    Sketcher.Constraint("Vertical", 11),
    Sketcher.Constraint("Vertical", 12),
    Sketcher.Constraint("Horizontal", 13),
    Sketcher.Constraint("Vertical", 14),
    Sketcher.Constraint("Horizontal", 15),
    Sketcher.Constraint("Horizontal", 17),
    Sketcher.Constraint("Vertical", 18),
    Sketcher.Constraint("Horizontal", 19),
    Sketcher.Constraint("Vertical", 20),
    Sketcher.Constraint("Horizontal", 21),
    Sketcher.Constraint("Vertical", 22),
    Sketcher.Constraint("Horizontal", 23),
    Sketcher.Constraint("Horizontal", 25),
    Sketcher.Constraint("Vertical", 26),
    Sketcher.Constraint("Horizontal", 27),
    Sketcher.Constraint("Horizontal", 28),
    Sketcher.Constraint("Vertical", 29),
    Sketcher.Constraint("Horizontal", 30),
    Sketcher.Constraint("Vertical", 31),
    Sketcher.Constraint("Vertical", 33),
    Sketcher.Constraint("Horizontal", 34),
    Sketcher.Constraint("Vertical", 35),
    Sketcher.Constraint("Horizontal", 36),
    Sketcher.Constraint("Vertical", 37),
    Sketcher.Constraint("Horizontal", 38),
    Sketcher.Constraint("Vertical", 39),
    Sketcher.Constraint("Vertical", 41),
    Sketcher.Constraint("Horizontal", 42),
    Sketcher.Constraint("Vertical", 43),
    Sketcher.Constraint("Vertical", 44),
    Sketcher.Constraint("Horizontal", 45),
    Sketcher.Constraint("Vertical", 46),
    Sketcher.Constraint("Horizontal", 47),
    Sketcher.Constraint("Horizontal", 49),
    Sketcher.Constraint("Vertical", 50),
    Sketcher.Constraint("Horizontal", 51),
    Sketcher.Constraint("Vertical", 52),
    Sketcher.Constraint("Horizontal", 53),
    Sketcher.Constraint("Vertical", 54),
    Sketcher.Constraint("Horizontal", 55),
    Sketcher.Constraint("Horizontal", 57),
    Sketcher.Constraint("Vertical", 58),
    Sketcher.Constraint("Horizontal", 59),
    Sketcher.Constraint("Horizontal", 60),
    Sketcher.Constraint("Vertical", 61),
    Sketcher.Constraint("Horizontal", 62),
    Sketcher.Constraint("Vertical", 63),
    Sketcher.Constraint("Vertical", 65),
    Sketcher.Constraint("Horizontal", 66),
    Sketcher.Constraint("Vertical", 67),
    Sketcher.Constraint("Equal", 8, 16),
    Sketcher.Constraint("Equal", 16, 24),
    Sketcher.Constraint("Equal", 24, 32),
    Sketcher.Constraint("Equal", 32, 40),
    Sketcher.Constraint("Equal", 40, 48),
    Sketcher.Constraint("Equal", 48, 56),
    Sketcher.Constraint("Equal", 56, 64),
    Sketcher.Constraint("Symmetric", 8, 3, 40, 3, -1, 1),
    Sketcher.Constraint("Symmetric", 16, 3, 48, 3, -1, 1),
    Sketcher.Constraint("Symmetric", 24, 3, 56, 3, -1, 1),
    Sketcher.Constraint("Symmetric", 32, 3, 64, 3, -1, 1),
    Sketcher.Constraint("Symmetric", 0, 2, 2, 2, -1, 1),
    Sketcher.Constraint("Symmetric", 4, 2, 36, 2, -1, 1),
    Sketcher.Constraint("Symmetric", 6, 2, 38, 2, -1, 1),
    Sketcher.Constraint("Symmetric", 9, 2, 41, 2, -1, 1),
    Sketcher.Constraint("Symmetric", 12, 2, 44, 2, -1, 1),
    Sketcher.Constraint("Symmetric", 14, 2, 46, 2, -1, 1),
    Sketcher.Constraint("Symmetric", 17, 2, 49, 2, -1, 1),
    Sketcher.Constraint("Symmetric", 20, 2, 52, 2, -1, 1),
    Sketcher.Constraint("Symmetric", 22, 2, 54, 2, -1, 1),
    Sketcher.Constraint("Symmetric", 25, 2, 57, 2, -1, 1),
    Sketcher.Constraint("Symmetric", 28, 2, 60, 2, -1, 1),
    Sketcher.Constraint("Symmetric", 30, 2, 62, 2, -1, 1),
    Sketcher.Constraint("Symmetric", 33, 2, 65, 2, -1, 1),
    Sketcher.Constraint("Symmetric", 16, 3, 24, 3, -2),
    Sketcher.Constraint("Symmetric", 8, 3, 32, 3, -2),
    Sketcher.Constraint("Symmetric", 19, 2, 20, 2, -2),
    Sketcher.Constraint("Symmetric", 17, 2, 22, 2, -2),
    Sketcher.Constraint("Symmetric", 14, 2, 25, 2, -2),
    Sketcher.Constraint("Symmetric", 11, 2, 28, 2, -2),
    Sketcher.Constraint("Symmetric", 9, 2, 30, 2, -2),
    Sketcher.Constraint("Symmetric", 6, 2, 33, 2, -2),
    Sketcher.Constraint("Horizontal", 7, 2, 8, 2),
    Sketcher.Constraint("Horizontal", 6, 2, 9, 2),
    Sketcher.Constraint("Horizontal", 13, 2, 26, 2),
    Sketcher.Constraint("Horizontal", 51, 2, 52, 2),
    Sketcher.Constraint("Horizontal", 45, 2, 58, 2),
    Sketcher.Constraint("Vertical", 15, 2, 16, 2),
    Sketcher.Constraint("Vertical", 14, 2, 17, 2),
    Sketcher.Constraint("Vertical", 35, 2, 36, 2),
    Sketcher.Constraint("Vertical", 29, 2, 42, 2),
    Sketcher.Constraint("Vertical", 5, 2, 66, 2),
    Sketcher.Constraint("Equal", 6, 10),
    Sketcher.Constraint("Equal", 3, 0),
    Sketcher.Constraint("Equal", 59, 5),
    Sketcher.Constraint("Equal", 57, 7),
    Sketcher.Constraint("Equal", 60, 12),
    Sketcher.Constraint("Equal", 66, 14),
    Sketcher.Constraint("Equal", 14, 18),
    Sketcher.Constraint("Radius", 8, Q("20 mm")),
    Sketcher.Constraint("DistanceX", 1, 2, 1, 1, Q("450 mm")),
    Sketcher.Constraint("DistanceX", 4, 1, 4, 2, Q("12 mm")),
    Sketcher.Constraint("DistanceX", 6, 1, 6, 2, Q("4 mm")),
    Sketcher.Constraint("DistanceX", 13, 2, 13, 1, Q("6 mm")),
    Sketcher.Constraint("DistanceX", 15, 2, 15, 1, Q("10 mm")),
    Sketcher.Constraint("DistanceX", 8, 3, -1, 1, Q("195 mm")),
    Sketcher.Constraint("DistanceY", -1, 1, 16, 3, Q("195 mm")),
    Sketcher.Constraint("DistanceY", -1, 1, 4, 2, Q("165 mm")),
    Sketcher.Constraint("DistanceX", 12, 2, -1, 1, Q("165 mm")),
])
pad3 = body.newObject("PartDesign::Pad", "Pad002")
pad3.Profile = sketch3
pad3.Length = 20

doc.recompute()
